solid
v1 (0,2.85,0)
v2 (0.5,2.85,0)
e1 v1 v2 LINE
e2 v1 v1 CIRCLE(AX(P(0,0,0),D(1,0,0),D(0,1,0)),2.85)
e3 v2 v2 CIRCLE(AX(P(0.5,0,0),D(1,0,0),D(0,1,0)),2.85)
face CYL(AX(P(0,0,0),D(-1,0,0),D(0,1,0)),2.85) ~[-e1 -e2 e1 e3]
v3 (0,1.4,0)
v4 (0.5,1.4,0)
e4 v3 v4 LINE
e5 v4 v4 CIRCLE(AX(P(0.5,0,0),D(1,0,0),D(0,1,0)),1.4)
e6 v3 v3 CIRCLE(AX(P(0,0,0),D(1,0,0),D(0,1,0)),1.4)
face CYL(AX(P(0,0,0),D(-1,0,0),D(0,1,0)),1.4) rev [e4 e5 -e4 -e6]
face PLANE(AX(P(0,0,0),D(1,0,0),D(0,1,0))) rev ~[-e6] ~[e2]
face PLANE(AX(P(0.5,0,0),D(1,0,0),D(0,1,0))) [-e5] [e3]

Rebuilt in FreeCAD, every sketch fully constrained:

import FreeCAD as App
import Part
import Sketcher
from FreeCAD import Vector

doc = App.newDocument("Part")
body = doc.addObject("PartDesign::Body", "Body")

# Sketch on YZ plane
sketch1 = body.newObject("Sketcher::SketchObject", "Sketch")
sketch1.AttachmentSupport = (doc.getObject("YZ_Plane"), [""])
sketch1.MapMode = "FlatFace"
sketch1.addGeometry([
    Part.Circle(Vector(0, 0, 0), Vector(0, 0, 1), 2.9),
    Part.Circle(Vector(0, 0, 0), Vector(0, 0, 1), 1.4),
], False)
sketch1.addConstraint([
    Sketcher.Constraint("Coincident", 0, 3, -1, 1),
    Sketcher.Constraint("Coincident", 1, 3, -1, 1),
    Sketcher.Constraint("Diameter", 0, 5.7),
    Sketcher.Constraint("Diameter", 1, 2.8),
])
pad1 = body.newObject("PartDesign::Pad", "Pad")
pad1.Profile = sketch1
pad1.Length = 0.5

doc.recompute()
